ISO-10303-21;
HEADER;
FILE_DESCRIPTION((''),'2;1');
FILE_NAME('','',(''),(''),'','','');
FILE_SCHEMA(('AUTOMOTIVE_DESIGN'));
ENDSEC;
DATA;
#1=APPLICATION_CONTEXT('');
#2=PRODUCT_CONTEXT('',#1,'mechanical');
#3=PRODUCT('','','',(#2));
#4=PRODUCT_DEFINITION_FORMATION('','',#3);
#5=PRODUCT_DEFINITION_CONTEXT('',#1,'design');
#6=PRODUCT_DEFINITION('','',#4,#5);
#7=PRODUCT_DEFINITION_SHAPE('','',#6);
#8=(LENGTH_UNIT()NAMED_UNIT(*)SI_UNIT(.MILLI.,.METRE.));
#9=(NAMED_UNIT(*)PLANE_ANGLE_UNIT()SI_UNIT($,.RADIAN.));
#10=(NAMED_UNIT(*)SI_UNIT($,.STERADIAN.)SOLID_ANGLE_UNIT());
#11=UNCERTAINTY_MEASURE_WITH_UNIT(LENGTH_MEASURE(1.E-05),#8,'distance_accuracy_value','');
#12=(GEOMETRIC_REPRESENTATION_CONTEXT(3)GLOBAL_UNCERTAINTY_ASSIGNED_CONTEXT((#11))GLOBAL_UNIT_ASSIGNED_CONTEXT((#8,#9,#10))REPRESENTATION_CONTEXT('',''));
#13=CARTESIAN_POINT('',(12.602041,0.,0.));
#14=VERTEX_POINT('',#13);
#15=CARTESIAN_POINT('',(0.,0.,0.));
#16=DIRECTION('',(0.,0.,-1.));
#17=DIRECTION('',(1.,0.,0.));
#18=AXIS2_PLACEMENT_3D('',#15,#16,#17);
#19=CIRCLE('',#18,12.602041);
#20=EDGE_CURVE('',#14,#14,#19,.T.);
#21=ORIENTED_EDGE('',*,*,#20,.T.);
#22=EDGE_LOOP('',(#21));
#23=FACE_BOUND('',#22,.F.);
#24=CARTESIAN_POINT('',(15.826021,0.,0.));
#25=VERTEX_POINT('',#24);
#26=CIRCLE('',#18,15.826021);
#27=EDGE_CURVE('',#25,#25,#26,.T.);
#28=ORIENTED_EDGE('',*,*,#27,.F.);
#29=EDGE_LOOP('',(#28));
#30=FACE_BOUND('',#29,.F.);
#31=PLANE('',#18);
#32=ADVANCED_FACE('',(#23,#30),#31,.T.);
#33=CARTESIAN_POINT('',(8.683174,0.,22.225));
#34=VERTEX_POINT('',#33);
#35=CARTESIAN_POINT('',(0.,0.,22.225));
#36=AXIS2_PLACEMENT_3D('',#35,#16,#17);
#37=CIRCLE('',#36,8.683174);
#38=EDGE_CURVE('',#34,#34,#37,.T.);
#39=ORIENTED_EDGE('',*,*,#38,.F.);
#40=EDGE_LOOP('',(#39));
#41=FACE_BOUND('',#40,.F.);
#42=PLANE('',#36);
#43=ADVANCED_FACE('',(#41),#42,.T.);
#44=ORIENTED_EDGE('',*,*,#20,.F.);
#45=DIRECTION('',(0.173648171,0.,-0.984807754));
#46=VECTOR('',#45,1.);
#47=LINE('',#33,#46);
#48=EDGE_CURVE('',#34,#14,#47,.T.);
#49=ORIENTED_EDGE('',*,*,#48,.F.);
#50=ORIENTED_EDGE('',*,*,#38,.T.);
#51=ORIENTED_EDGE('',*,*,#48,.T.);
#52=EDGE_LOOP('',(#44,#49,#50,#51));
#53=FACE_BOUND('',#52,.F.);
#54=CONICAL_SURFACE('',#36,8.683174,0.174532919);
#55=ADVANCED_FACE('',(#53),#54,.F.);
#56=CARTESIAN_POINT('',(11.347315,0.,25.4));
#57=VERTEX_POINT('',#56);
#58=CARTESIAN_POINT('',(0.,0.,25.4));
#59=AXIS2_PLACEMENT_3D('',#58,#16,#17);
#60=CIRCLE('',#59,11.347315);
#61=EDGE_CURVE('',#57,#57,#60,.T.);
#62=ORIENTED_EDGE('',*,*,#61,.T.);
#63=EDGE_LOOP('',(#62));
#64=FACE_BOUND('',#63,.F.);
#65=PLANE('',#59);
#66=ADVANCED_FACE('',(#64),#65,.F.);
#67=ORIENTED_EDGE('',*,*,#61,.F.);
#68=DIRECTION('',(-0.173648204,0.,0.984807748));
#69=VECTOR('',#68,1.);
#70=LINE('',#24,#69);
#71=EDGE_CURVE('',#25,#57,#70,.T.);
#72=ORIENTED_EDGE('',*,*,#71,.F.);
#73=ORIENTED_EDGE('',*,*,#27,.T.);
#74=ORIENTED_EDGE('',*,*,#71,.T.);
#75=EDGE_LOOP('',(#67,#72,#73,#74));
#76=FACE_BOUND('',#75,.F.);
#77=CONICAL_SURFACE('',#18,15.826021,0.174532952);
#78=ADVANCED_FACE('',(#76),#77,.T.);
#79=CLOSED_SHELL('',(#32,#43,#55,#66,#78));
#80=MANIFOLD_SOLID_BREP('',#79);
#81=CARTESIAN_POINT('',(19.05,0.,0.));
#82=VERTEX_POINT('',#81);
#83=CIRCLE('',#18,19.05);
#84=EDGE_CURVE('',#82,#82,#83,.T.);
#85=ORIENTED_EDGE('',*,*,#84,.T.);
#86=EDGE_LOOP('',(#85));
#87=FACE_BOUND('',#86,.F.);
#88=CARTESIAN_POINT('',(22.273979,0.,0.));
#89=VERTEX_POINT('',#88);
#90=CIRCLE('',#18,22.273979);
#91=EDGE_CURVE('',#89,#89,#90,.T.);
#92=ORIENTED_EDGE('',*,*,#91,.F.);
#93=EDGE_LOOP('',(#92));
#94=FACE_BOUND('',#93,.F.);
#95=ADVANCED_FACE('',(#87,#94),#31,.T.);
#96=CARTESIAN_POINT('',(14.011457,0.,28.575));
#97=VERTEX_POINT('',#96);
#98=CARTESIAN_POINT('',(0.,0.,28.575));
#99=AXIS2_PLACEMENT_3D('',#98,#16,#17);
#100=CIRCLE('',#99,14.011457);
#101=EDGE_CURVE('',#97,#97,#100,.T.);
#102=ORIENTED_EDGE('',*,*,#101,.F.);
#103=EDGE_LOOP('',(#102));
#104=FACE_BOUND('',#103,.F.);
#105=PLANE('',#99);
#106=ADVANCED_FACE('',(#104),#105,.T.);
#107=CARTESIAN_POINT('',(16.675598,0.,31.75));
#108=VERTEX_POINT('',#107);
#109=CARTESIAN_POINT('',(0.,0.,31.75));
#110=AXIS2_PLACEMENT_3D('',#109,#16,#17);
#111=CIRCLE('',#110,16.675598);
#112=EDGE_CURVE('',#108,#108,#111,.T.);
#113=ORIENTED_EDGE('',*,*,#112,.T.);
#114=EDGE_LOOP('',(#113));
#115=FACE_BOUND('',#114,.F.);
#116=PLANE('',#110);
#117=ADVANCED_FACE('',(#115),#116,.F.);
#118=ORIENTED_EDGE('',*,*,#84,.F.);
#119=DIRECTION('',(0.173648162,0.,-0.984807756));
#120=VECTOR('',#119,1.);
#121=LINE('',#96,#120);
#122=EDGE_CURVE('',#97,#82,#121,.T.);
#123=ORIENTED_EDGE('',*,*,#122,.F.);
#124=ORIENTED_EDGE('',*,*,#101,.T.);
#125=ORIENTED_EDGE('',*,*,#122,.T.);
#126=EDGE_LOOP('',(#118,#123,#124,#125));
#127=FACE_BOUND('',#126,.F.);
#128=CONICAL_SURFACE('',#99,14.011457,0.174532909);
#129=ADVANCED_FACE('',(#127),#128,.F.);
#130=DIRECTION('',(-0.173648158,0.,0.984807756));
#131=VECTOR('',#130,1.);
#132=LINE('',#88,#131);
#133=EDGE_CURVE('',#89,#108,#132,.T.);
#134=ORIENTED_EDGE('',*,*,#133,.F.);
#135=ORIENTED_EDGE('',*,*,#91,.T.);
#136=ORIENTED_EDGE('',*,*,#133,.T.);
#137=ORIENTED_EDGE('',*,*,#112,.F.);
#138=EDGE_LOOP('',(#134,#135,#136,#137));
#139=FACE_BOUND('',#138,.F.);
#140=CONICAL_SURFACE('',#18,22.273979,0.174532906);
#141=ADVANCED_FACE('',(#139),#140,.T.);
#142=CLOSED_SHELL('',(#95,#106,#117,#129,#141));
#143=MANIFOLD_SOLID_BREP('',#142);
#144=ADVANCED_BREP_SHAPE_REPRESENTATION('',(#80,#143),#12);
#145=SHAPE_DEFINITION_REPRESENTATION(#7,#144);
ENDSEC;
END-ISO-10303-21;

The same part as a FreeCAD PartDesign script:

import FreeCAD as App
import Part
import Sketcher
Q = App.Units.Quantity


def add_polygon(sketch, points):
    """Adds a closed chain of lines whose ends are joined by coincident constraints."""
    first, n = sketch.GeometryCount, len(points)
    for a, b in zip(points, points[1:] + points[:1]):
        sketch.addGeometry(Part.LineSegment(App.Vector(*a, 0), App.Vector(*b, 0)), False)
    for i in range(n):
        sketch.addConstraint(Sketcher.Constraint("Coincident", first + i, 2, first + (i + 1) % n, 1))

doc = App.newDocument("Part")
body = doc.addObject("PartDesign::Body", "Body")
body.AllowCompound = True

# Sketch on XZ plane
sketch1 = body.newObject("Sketcher::SketchObject", "Sketch")
sketch1.AttachmentSupport = (doc.getObject("XZ_Plane"), [""])
sketch1.MapMode = "FlatFace"
add_polygon(sketch1, [(14, 28.6), (19.1, 0), (22.3, 0), (16.7, 31.8), (0, 31.8), (0, 28.6)])  # lines 0-5
add_polygon(sketch1, [(15.8, 0), (11.3, 25.4), (0, 25.4), (0, 22.2), (8.7, 22.2), (12.6, 0)])  # lines 6-11
sketch1.addConstraint([
    Sketcher.Constraint("Horizontal", 1),
    Sketcher.Constraint("Horizontal", 3),
    Sketcher.Constraint("Vertical", 4),
    Sketcher.Constraint("Horizontal", 5),
    Sketcher.Constraint("Horizontal", 7),
    Sketcher.Constraint("Vertical", 8),
    Sketcher.Constraint("Horizontal", 9),
    Sketcher.Constraint("Horizontal", 11),
    Sketcher.Constraint("PointOnObject", 0, 2, -1),
    Sketcher.Constraint("PointOnObject", 3, 2, -2),
    Sketcher.Constraint("PointOnObject", 7, 2, -2),
    Sketcher.Constraint("PointOnObject", 10, 2, -1),
    Sketcher.Constraint("Parallel", 0, 2),
    Sketcher.Constraint("Parallel", 2, 6),
    Sketcher.Constraint("Parallel", 6, 10),
    Sketcher.Constraint("Equal", 1, 11),
    Sketcher.Constraint("Equal", 4, 8),
    Sketcher.Constraint("DistanceY", -1, 1, 6, 2, Q("1 in")),
    Sketcher.Constraint("Angle", 0, Q("-80.000001 deg")),
    Sketcher.Constraint("DistanceY", 4, 2, 4, 1, Q("0.125 in")),
    Sketcher.Constraint("DistanceX", -1, 1, 0, 2, Q("0.75 in")),
    Sketcher.Constraint("DistanceY", -1, 1, 2, 2, Q("1.25 in")),
    Sketcher.Constraint("DistanceX", 3, 2, 3, 1, 16.675598),
    Sketcher.Constraint("DistanceX", 7, 2, 7, 1, 11.347315),
])
revolution = body.newObject("PartDesign::Revolution", "Revolution")
revolution.Profile = sketch1
revolution.ReferenceAxis = (sketch1, ["V_Axis"])
revolution.Angle = 360

doc.recompute()
